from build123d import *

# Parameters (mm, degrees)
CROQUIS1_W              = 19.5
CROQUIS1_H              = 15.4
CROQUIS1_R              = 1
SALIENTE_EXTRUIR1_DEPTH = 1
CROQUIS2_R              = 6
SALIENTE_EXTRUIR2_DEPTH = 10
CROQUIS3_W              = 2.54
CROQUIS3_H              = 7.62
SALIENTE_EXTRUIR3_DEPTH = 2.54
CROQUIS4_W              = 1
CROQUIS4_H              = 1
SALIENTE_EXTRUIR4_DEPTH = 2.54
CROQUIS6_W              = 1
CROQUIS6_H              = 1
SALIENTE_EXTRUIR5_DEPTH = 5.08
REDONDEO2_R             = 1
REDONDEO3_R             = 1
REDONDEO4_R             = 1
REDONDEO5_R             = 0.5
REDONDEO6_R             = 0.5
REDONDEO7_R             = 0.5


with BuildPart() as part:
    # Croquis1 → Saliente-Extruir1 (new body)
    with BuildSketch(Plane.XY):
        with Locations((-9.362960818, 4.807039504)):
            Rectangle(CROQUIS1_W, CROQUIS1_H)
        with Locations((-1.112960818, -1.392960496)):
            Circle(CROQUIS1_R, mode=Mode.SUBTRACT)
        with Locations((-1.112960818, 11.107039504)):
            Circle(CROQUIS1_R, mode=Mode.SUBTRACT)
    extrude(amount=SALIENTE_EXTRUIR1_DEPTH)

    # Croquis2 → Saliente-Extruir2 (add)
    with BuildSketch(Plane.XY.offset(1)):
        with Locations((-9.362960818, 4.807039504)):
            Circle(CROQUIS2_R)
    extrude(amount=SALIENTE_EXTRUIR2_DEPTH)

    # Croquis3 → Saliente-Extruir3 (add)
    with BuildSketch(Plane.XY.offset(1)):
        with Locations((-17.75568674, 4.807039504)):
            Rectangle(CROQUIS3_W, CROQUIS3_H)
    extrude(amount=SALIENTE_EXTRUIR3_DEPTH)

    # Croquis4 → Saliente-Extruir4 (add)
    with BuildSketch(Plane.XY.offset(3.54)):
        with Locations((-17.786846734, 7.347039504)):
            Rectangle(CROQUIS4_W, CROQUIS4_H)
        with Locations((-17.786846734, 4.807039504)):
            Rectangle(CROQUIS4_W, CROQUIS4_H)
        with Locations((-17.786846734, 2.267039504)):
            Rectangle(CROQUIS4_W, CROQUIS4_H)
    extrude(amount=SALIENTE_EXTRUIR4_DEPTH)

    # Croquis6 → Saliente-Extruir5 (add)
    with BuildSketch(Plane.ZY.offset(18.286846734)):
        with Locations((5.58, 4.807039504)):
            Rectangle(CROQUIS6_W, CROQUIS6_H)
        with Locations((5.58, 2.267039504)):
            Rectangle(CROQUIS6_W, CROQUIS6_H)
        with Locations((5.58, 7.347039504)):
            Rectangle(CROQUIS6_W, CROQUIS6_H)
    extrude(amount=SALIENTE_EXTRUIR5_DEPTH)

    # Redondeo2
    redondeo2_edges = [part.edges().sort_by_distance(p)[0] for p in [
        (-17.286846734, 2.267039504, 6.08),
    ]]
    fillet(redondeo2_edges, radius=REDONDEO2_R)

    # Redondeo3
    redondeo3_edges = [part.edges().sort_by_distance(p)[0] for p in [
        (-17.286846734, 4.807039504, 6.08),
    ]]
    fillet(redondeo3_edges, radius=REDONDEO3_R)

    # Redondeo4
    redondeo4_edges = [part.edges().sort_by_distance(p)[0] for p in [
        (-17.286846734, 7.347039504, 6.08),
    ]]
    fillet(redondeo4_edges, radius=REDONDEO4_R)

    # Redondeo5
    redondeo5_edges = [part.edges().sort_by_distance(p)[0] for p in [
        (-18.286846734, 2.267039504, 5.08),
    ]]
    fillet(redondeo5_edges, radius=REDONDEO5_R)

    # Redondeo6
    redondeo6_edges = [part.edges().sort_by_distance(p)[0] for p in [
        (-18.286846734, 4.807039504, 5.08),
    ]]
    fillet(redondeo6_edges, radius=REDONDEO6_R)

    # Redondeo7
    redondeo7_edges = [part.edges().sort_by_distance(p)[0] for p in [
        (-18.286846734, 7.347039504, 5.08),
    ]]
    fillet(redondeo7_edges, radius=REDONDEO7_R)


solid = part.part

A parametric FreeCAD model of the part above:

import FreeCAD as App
import Part
import Sketcher


def edges_at(feature, points):
    """Names of the edges that pass closest to the given points."""
    edges = feature.Shape.Edges
    near = lambda p: min(range(len(edges)), key=lambda i: edges[i].distToShape(Part.Vertex(*p))[0])
    return sorted({f"Edge{near(p) + 1}" for p in points})

doc = App.newDocument("Part")
body = doc.addObject("PartDesign::Body", "Body")

sketch1 = body.newObject("Sketcher::SketchObject", "Sketch")
sketch1.AttachmentSupport = (doc.getObject("XY_Plane"), [""])
sketch1.MapMode = "FlatFace"
sketch1.addGeometry(Part.LineSegment(App.Vector(-19.1, 12.5, 0), App.Vector(-19.1, -2.9, 0)), False)
sketch1.addGeometry(Part.LineSegment(App.Vector(-19.1, -2.9, 0), App.Vector(0.4, -2.9, 0)), False)
sketch1.addGeometry(Part.LineSegment(App.Vector(0.4, -2.9, 0), App.Vector(0.4, 12.5, 0)), False)
sketch1.addGeometry(Part.LineSegment(App.Vector(0.4, 12.5, 0), App.Vector(-19.1, 12.5, 0)), False)
sketch1.addGeometry(Part.Circle(App.Vector(-1.1, -1.4, 0), App.Vector(0, 0, 1), 1), False)
sketch1.addGeometry(Part.Circle(App.Vector(-1.1, 11.1, 0), App.Vector(0, 0, 1), 1), False)
sketch1.addConstraint(Sketcher.Constraint("Coincident", 0, 2, 1, 1))
sketch1.addConstraint(Sketcher.Constraint("Coincident", 1, 2, 2, 1))
sketch1.addConstraint(Sketcher.Constraint("Coincident", 2, 2, 3, 1))
sketch1.addConstraint(Sketcher.Constraint("Coincident", 3, 2, 0, 1))
sketch1.addConstraint(Sketcher.Constraint("Vertical", 0))
sketch1.addConstraint(Sketcher.Constraint("Horizontal", 1))
sketch1.addConstraint(Sketcher.Constraint("Vertical", 2))
sketch1.addConstraint(Sketcher.Constraint("Horizontal", 3))
sketch1.addConstraint(Sketcher.Constraint("Equal", 4, 5))
sketch1.addConstraint(Sketcher.Constraint("Vertical", 4, 3, 5, 3))
sketch1.addConstraint(Sketcher.Constraint("Diameter", 4, 2.0))
sketch1.addConstraint(Sketcher.Constraint("DistanceX", 1, 1, 1, 2, 19.5))
sketch1.addConstraint(Sketcher.Constraint("DistanceY", 0, 2, 0, 1, 15.4))
sketch1.addConstraint(Sketcher.Constraint("DistanceX", 0, 2, 4, 3, 18.0))
sketch1.addConstraint(Sketcher.Constraint("DistanceY", 0, 2, 5, 3, 14.0))
sketch1.addConstraint(Sketcher.Constraint("DistanceY", 4, 3, 5, 3, 12.5))
sketch1.addConstraint(Sketcher.Constraint("DistanceX", 4, 3, -1, 1, 1.112961))
sketch1.addConstraint(Sketcher.Constraint("DistanceY", 4, 3, -1, 1, 1.39296))
pad1 = body.newObject("PartDesign::Pad", "Pad")
pad1.Profile = sketch1
pad1.Length = 1

sketch2 = body.newObject("Sketcher::SketchObject", "Sketch001")
sketch2.AttachmentSupport = (doc.getObject("XY_Plane"), [""])
sketch2.MapMode = "FlatFace"
sketch2.AttachmentOffset = App.Placement(App.Vector(0, 0, 1), App.Rotation())
sketch2.addGeometry(Part.Circle(App.Vector(-9, 5, 0), App.Vector(0, 0, 1), 6), False)
sketch2.addConstraint(Sketcher.Constraint("Diameter", 0, 12.0))
sketch2.addConstraint(Sketcher.Constraint("DistanceX", 0, 3, -1, 1, 9.362961))
sketch2.addConstraint(Sketcher.Constraint("DistanceY", -1, 1, 0, 3, 4.80704))
pad2 = body.newObject("PartDesign::Pad", "Pad001")
pad2.Profile = sketch2
pad2.Length = 10

sketch3 = body.newObject("Sketcher::SketchObject", "Sketch002")
sketch3.AttachmentSupport = (doc.getObject("XY_Plane"), [""])
sketch3.MapMode = "FlatFace"
sketch3.AttachmentOffset = App.Placement(App.Vector(0, 0, 1), App.Rotation())
sketch3.addGeometry(Part.LineSegment(App.Vector(-19, 8.6, 0), App.Vector(-19, 1, 0)), False)
sketch3.addGeometry(Part.LineSegment(App.Vector(-19, 1, 0), App.Vector(-16.5, 1, 0)), False)
sketch3.addGeometry(Part.LineSegment(App.Vector(-16.5, 1, 0), App.Vector(-16.5, 8.6, 0)), False)
sketch3.addGeometry(Part.LineSegment(App.Vector(-16.5, 8.6, 0), App.Vector(-19, 8.6, 0)), False)
sketch3.addConstraint(Sketcher.Constraint("Coincident", 0, 2, 1, 1))
sketch3.addConstraint(Sketcher.Constraint("Coincident", 1, 2, 2, 1))
sketch3.addConstraint(Sketcher.Constraint("Coincident", 2, 2, 3, 1))
sketch3.addConstraint(Sketcher.Constraint("Coincident", 3, 2, 0, 1))
sketch3.addConstraint(Sketcher.Constraint("Vertical", 0))
sketch3.addConstraint(Sketcher.Constraint("Horizontal", 1))
sketch3.addConstraint(Sketcher.Constraint("Vertical", 2))
sketch3.addConstraint(Sketcher.Constraint("Horizontal", 3))
sketch3.addConstraint(Sketcher.Constraint("DistanceX", 1, 1, 1, 2, 2.54))
sketch3.addConstraint(Sketcher.Constraint("DistanceY", 0, 2, 0, 1, 7.62))
sketch3.addConstraint(Sketcher.Constraint("DistanceY", -1, 1, 0, 2, 0.99704))
sketch3.addConstraint(Sketcher.Constraint("DistanceX", 0, 2, -1, 1, 19.025687))
pad3 = body.newObject("PartDesign::Pad", "Pad002")
pad3.Profile = sketch3
pad3.Length = 2.54

sketch4 = body.newObject("Sketcher::SketchObject", "Sketch003")
sketch4.AttachmentSupport = (doc.getObject("XY_Plane"), [""])
sketch4.MapMode = "FlatFace"
sketch4.AttachmentOffset = App.Placement(App.Vector(0, 0, 3.54), App.Rotation())
sketch4.addGeometry(Part.LineSegment(App.Vector(-18.3, 7.8, 0), App.Vector(-18.3, 6.8, 0)), False)
sketch4.addGeometry(Part.LineSegment(App.Vector(-18.3, 6.8, 0), App.Vector(-17.3, 6.8, 0)), False)
sketch4.addGeometry(Part.LineSegment(App.Vector(-17.3, 6.8, 0), App.Vector(-17.3, 7.8, 0)), False)
sketch4.addGeometry(Part.LineSegment(App.Vector(-17.3, 7.8, 0), App.Vector(-18.3, 7.8, 0)), False)
sketch4.addGeometry(Part.LineSegment(App.Vector(-18.3, 5.3, 0), App.Vector(-18.3, 4.3, 0)), False)
sketch4.addGeometry(Part.LineSegment(App.Vector(-18.3, 4.3, 0), App.Vector(-17.3, 4.3, 0)), False)
sketch4.addGeometry(Part.LineSegment(App.Vector(-17.3, 4.3, 0), App.Vector(-17.3, 5.3, 0)), False)
sketch4.addGeometry(Part.LineSegment(App.Vector(-17.3, 5.3, 0), App.Vector(-18.3, 5.3, 0)), False)
sketch4.addGeometry(Part.LineSegment(App.Vector(-18.3, 2.8, 0), App.Vector(-18.3, 1.8, 0)), False)
sketch4.addGeometry(Part.LineSegment(App.Vector(-18.3, 1.8, 0), App.Vector(-17.3, 1.8, 0)), False)
sketch4.addGeometry(Part.LineSegment(App.Vector(-17.3, 1.8, 0), App.Vector(-17.3, 2.8, 0)), False)
sketch4.addGeometry(Part.LineSegment(App.Vector(-17.3, 2.8, 0), App.Vector(-18.3, 2.8, 0)), False)
sketch4.addConstraint(Sketcher.Constraint("Coincident", 0, 2, 1, 1))
sketch4.addConstraint(Sketcher.Constraint("Coincident", 1, 2, 2, 1))
sketch4.addConstraint(Sketcher.Constraint("Coincident", 2, 2, 3, 1))
sketch4.addConstraint(Sketcher.Constraint("Coincident", 3, 2, 0, 1))
sketch4.addConstraint(Sketcher.Constraint("Coincident", 4, 2, 5, 1))
sketch4.addConstraint(Sketcher.Constraint("Coincident", 5, 2, 6, 1))
sketch4.addConstraint(Sketcher.Constraint("Coincident", 6, 2, 7, 1))
sketch4.addConstraint(Sketcher.Constraint("Coincident", 7, 2, 4, 1))
sketch4.addConstraint(Sketcher.Constraint("Coincident", 8, 2, 9, 1))
sketch4.addConstraint(Sketcher.Constraint("Coincident", 9, 2, 10, 1))
sketch4.addConstraint(Sketcher.Constraint("Coincident", 10, 2, 11, 1))
sketch4.addConstraint(Sketcher.Constraint("Coincident", 11, 2, 8, 1))
sketch4.addConstraint(Sketcher.Constraint("Vertical", 0))
sketch4.addConstraint(Sketcher.Constraint("Horizontal", 1))
sketch4.addConstraint(Sketcher.Constraint("Vertical", 2))
sketch4.addConstraint(Sketcher.Constraint("Horizontal", 3))
sketch4.addConstraint(Sketcher.Constraint("Vertical", 4))
sketch4.addConstraint(Sketcher.Constraint("Horizontal", 5))
sketch4.addConstraint(Sketcher.Constraint("Vertical", 6))
sketch4.addConstraint(Sketcher.Constraint("Horizontal", 7))
sketch4.addConstraint(Sketcher.Constraint("Vertical", 8))
sketch4.addConstraint(Sketcher.Constraint("Horizontal", 9))
sketch4.addConstraint(Sketcher.Constraint("Vertical", 10))
sketch4.addConstraint(Sketcher.Constraint("Horizontal", 11))
sketch4.addConstraint(Sketcher.Constraint("Vertical", 3, 2, 4, 2))
sketch4.addConstraint(Sketcher.Constraint("Vertical", 2, 2, 5, 2))
sketch4.addConstraint(Sketcher.Constraint("Vertical", 7, 2, 8, 2))
sketch4.addConstraint(Sketcher.Constraint("Vertical", 6, 2, 9, 2))
sketch4.addConstraint(Sketcher.Constraint("Equal", 11, 0))
sketch4.addConstraint(Sketcher.Constraint("Equal", 2, 4))
sketch4.addConstraint(Sketcher.Constraint("Equal", 6, 8))
sketch4.addConstraint(Sketcher.Constraint("DistanceX", 1, 1, 1, 2, 1.0))
sketch4.addConstraint(Sketcher.Constraint("DistanceY", 4, 2, 0, 2, 2.54))
sketch4.addConstraint(Sketcher.Constraint("DistanceY", 8, 2, 4, 2, 2.54))
sketch4.addConstraint(Sketcher.Constraint("DistanceY", -1, 1, 0, 2, 6.84704))
sketch4.addConstraint(Sketcher.Constraint("DistanceX", 0, 2, -1, 1, 18.286847))
pad4 = body.newObject("PartDesign::Pad", "Pad003")
pad4.Profile = sketch4
pad4.Length = 2.54

sketch5 = body.newObject("Sketcher::SketchObject", "Sketch004")
sketch5.AttachmentSupport = (doc.getObject("YZ_Plane"), [""])
sketch5.MapMode = "FlatFace"
sketch5.AttachmentOffset = App.Placement(App.Vector(0, 0, -18.286847), App.Rotation())
sketch5.addGeometry(Part.LineSegment(App.Vector(5.3, 5.1, 0), App.Vector(4.3, 5.1, 0)), False)
sketch5.addGeometry(Part.LineSegment(App.Vector(4.3, 5.1, 0), App.Vector(4.3, 6.1, 0)), False)
sketch5.addGeometry(Part.LineSegment(App.Vector(4.3, 6.1, 0), App.Vector(5.3, 6.1, 0)), False)
sketch5.addGeometry(Part.LineSegment(App.Vector(5.3, 6.1, 0), App.Vector(5.3, 5.1, 0)), False)
sketch5.addGeometry(Part.LineSegment(App.Vector(2.8, 5.1, 0), App.Vector(1.8, 5.1, 0)), False)
sketch5.addGeometry(Part.LineSegment(App.Vector(1.8, 5.1, 0), App.Vector(1.8, 6.1, 0)), False)
sketch5.addGeometry(Part.LineSegment(App.Vector(1.8, 6.1, 0), App.Vector(2.8, 6.1, 0)), False)
sketch5.addGeometry(Part.LineSegment(App.Vector(2.8, 6.1, 0), App.Vector(2.8, 5.1, 0)), False)
sketch5.addGeometry(Part.LineSegment(App.Vector(7.8, 5.1, 0), App.Vector(6.8, 5.1, 0)), False)
sketch5.addGeometry(Part.LineSegment(App.Vector(6.8, 5.1, 0), App.Vector(6.8, 6.1, 0)), False)
sketch5.addGeometry(Part.LineSegment(App.Vector(6.8, 6.1, 0), App.Vector(7.8, 6.1, 0)), False)
sketch5.addGeometry(Part.LineSegment(App.Vector(7.8, 6.1, 0), App.Vector(7.8, 5.1, 0)), False)
sketch5.addConstraint(Sketcher.Constraint("Coincident", 0, 2, 1, 1))
sketch5.addConstraint(Sketcher.Constraint("Coincident", 1, 2, 2, 1))
sketch5.addConstraint(Sketcher.Constraint("Coincident", 2, 2, 3, 1))
sketch5.addConstraint(Sketcher.Constraint("Coincident", 3, 2, 0, 1))
sketch5.addConstraint(Sketcher.Constraint("Coincident", 4, 2, 5, 1))
sketch5.addConstraint(Sketcher.Constraint("Coincident", 5, 2, 6, 1))
sketch5.addConstraint(Sketcher.Constraint("Coincident", 6, 2, 7, 1))
sketch5.addConstraint(Sketcher.Constraint("Coincident", 7, 2, 4, 1))
sketch5.addConstraint(Sketcher.Constraint("Coincident", 8, 2, 9, 1))
sketch5.addConstraint(Sketcher.Constraint("Coincident", 9, 2, 10, 1))
sketch5.addConstraint(Sketcher.Constraint("Coincident", 10, 2, 11, 1))
sketch5.addConstraint(Sketcher.Constraint("Coincident", 11, 2, 8, 1))
sketch5.addConstraint(Sketcher.Constraint("Horizontal", 0))
sketch5.addConstraint(Sketcher.Constraint("Vertical", 1))
sketch5.addConstraint(Sketcher.Constraint("Horizontal", 2))
sketch5.addConstraint(Sketcher.Constraint("Vertical", 3))
sketch5.addConstraint(Sketcher.Constraint("Horizontal", 4))
sketch5.addConstraint(Sketcher.Constraint("Vertical", 5))
sketch5.addConstraint(Sketcher.Constraint("Horizontal", 6))
sketch5.addConstraint(Sketcher.Constraint("Vertical", 7))
sketch5.addConstraint(Sketcher.Constraint("Horizontal", 8))
sketch5.addConstraint(Sketcher.Constraint("Vertical", 9))
sketch5.addConstraint(Sketcher.Constraint("Horizontal", 10))
sketch5.addConstraint(Sketcher.Constraint("Vertical", 11))
sketch5.addConstraint(Sketcher.Constraint("Horizontal", 3, 2, 4, 2))
sketch5.addConstraint(Sketcher.Constraint("Horizontal", 2, 2, 5, 2))
sketch5.addConstraint(Sketcher.Constraint("Horizontal", 7, 2, 8, 2))
sketch5.addConstraint(Sketcher.Constraint("Horizontal", 6, 2, 9, 2))
sketch5.addConstraint(Sketcher.Constraint("Equal", 2, 4))
sketch5.addConstraint(Sketcher.Constraint("Equal", 6, 8))
sketch5.addConstraint(Sketcher.Constraint("Equal", 10, 1))
sketch5.addConstraint(Sketcher.Constraint("DistanceX", 0, 2, 0, 1, 1.0))
sketch5.addConstraint(Sketcher.Constraint("DistanceY", -1, 1, 0, 2, 5.08))
sketch5.addConstraint(Sketcher.Constraint("DistanceX", 4, 2, 0, 2, 2.54))
sketch5.addConstraint(Sketcher.Constraint("DistanceX", 3, 2, 8, 2, 1.54))
sketch5.addConstraint(Sketcher.Constraint("DistanceX", -1, 1, 0, 2, 4.30704))
pad5 = body.newObject("PartDesign::Pad", "Pad004")
pad5.Profile = sketch5
pad5.Length = 5.08
pad5.Reversed = True
doc.recompute()

fillet = body.newObject("PartDesign::Fillet", "Fillet")
fillet.Base = (pad5, edges_at(pad5, [(-17.287, 2.267, 6.08)]))
fillet.Radius = 1
doc.recompute()

fillet2 = body.newObject("PartDesign::Fillet", "Fillet001")
fillet2.Base = (fillet, edges_at(fillet, [(-17.287, 4.807, 6.08)]))
fillet2.Radius = 1
doc.recompute()

fillet3 = body.newObject("PartDesign::Fillet", "Fillet002")
fillet3.Base = (fillet2, edges_at(fillet2, [(-17.287, 7.347, 6.08)]))
fillet3.Radius = 1
doc.recompute()

fillet4 = body.newObject("PartDesign::Fillet", "Fillet003")
fillet4.Base = (fillet3, edges_at(fillet3, [(-18.287, 2.267, 5.08)]))
fillet4.Radius = 0.5
doc.recompute()

fillet5 = body.newObject("PartDesign::Fillet", "Fillet004")
fillet5.Base = (fillet4, edges_at(fillet4, [(-18.287, 4.807, 5.08)]))
fillet5.Radius = 0.5
doc.recompute()

fillet6 = body.newObject("PartDesign::Fillet", "Fillet005")
fillet6.Base = (fillet5, edges_at(fillet5, [(-18.287, 7.347, 5.08)]))
fillet6.Radius = 0.5

doc.recompute()
